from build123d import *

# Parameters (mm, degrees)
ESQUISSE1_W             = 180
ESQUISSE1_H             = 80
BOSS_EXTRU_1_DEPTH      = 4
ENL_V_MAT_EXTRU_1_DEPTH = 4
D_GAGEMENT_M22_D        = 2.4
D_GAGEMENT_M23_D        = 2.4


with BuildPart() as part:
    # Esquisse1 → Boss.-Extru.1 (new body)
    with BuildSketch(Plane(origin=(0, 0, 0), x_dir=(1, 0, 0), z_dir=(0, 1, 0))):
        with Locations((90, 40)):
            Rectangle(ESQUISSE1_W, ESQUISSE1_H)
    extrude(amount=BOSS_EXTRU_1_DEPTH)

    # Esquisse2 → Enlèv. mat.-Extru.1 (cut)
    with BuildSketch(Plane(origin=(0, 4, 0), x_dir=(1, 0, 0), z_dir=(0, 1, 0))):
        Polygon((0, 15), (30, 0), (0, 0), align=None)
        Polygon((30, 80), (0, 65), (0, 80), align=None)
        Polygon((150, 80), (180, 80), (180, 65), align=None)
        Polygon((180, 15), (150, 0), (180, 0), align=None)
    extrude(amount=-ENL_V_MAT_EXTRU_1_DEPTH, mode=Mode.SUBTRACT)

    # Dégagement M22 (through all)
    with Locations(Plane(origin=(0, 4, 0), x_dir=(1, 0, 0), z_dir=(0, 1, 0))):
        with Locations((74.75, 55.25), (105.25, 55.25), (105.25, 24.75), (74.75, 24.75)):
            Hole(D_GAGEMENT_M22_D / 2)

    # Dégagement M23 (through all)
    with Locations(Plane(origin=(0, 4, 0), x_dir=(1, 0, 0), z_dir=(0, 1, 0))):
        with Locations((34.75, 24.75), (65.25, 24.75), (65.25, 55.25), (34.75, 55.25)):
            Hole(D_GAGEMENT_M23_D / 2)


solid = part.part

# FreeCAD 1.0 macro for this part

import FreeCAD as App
import Part
import Sketcher

doc = App.newDocument("Part")
params = doc.addObject("Spreadsheet::Sheet", "Params")
for row, (alias, value) in enumerate([
    ("sketch1_width", "180 mm"),
    ("sketch1_height", "80 mm"),
    ("pad1_length", "4 mm"),
    ("sketch2_width", "30 mm"),
    ("sketch2_height", "15 mm"),
    ("pocket1_length", "4 mm"),
    ("sketch3_diameter", "2.4 mm"),
    ("hole_diameter", "2.4 mm"),
    ("sketch4_diameter", "2.4 mm"),
    ("hole2_diameter", "2.4 mm"),
], start=1):
    params.set(f"A{row}", alias)
    params.set(f"B{row}", "=" + value)
    params.setAlias(f"B{row}", alias)

body = doc.addObject("PartDesign::Body", "Body")

# Sketch on XZ plane
sketch1 = doc.addObject("Sketcher::SketchObject", "Sketch")
body.addObject(sketch1)
sketch1.AttachmentSupport = (doc.XZ_Plane, [""])
sketch1.MapMode = "FlatFace"
sketch1.addGeometry(Part.LineSegment(App.Vector(0, -80, 0), App.Vector(0, 0, 0)), False)
sketch1.addGeometry(Part.LineSegment(App.Vector(0, 0, 0), App.Vector(180, 0, 0)), False)
sketch1.addGeometry(Part.LineSegment(App.Vector(180, 0, 0), App.Vector(180, -80, 0)), False)
sketch1.addGeometry(Part.LineSegment(App.Vector(180, -80, 0), App.Vector(0, -80, 0)), False)
sketch1.addConstraint(Sketcher.Constraint("Coincident", 0, 2, 1, 1))
sketch1.addConstraint(Sketcher.Constraint("Coincident", 1, 2, 2, 1))
sketch1.addConstraint(Sketcher.Constraint("Coincident", 2, 2, 3, 1))
sketch1.addConstraint(Sketcher.Constraint("Coincident", 3, 2, 0, 1))
sketch1.addConstraint(Sketcher.Constraint("Vertical", 0))
sketch1.addConstraint(Sketcher.Constraint("Horizontal", 1))
sketch1.addConstraint(Sketcher.Constraint("Vertical", 2))
sketch1.addConstraint(Sketcher.Constraint("Horizontal", 3))
sketch1.addConstraint(Sketcher.Constraint("Coincident", 0, 2, -1, 1))
sketch1.addConstraint(Sketcher.Constraint("DistanceX", 1, 1, 1, 2, 180.0))
sketch1.addConstraint(Sketcher.Constraint("DistanceY", 0, 1, 0, 2, 80.0))
sketch1.setExpression("Constraints[9]", "Params.sketch1_width")
sketch1.setExpression("Constraints[10]", "Params.sketch1_height")
pad1 = doc.addObject("PartDesign::Pad", "Pad")
body.addObject(pad1)
pad1.Profile = sketch1
pad1.setExpression("Length", "Params.pad1_length")
pad1.Reversed = True

# Sketch on XZ plane
sketch2 = doc.addObject("Sketcher::SketchObject", "Sketch001")
body.addObject(sketch2)
sketch2.AttachmentSupport = (doc.XZ_Plane, [""])
sketch2.MapMode = "FlatFace"
sketch2.AttachmentOffset = App.Placement(App.Vector(0, 0, -4), App.Rotation())
sketch2.addGeometry(Part.LineSegment(App.Vector(30, 0, 0), App.Vector(0, -15, 0)), False)
sketch2.addGeometry(Part.LineSegment(App.Vector(0, -15, 0), App.Vector(0, 0, 0)), False)
sketch2.addGeometry(Part.LineSegment(App.Vector(0, 0, 0), App.Vector(30, 0, 0)), False)
sketch2.addGeometry(Part.LineSegment(App.Vector(0, -65, 0), App.Vector(30, -80, 0)), False)
sketch2.addGeometry(Part.LineSegment(App.Vector(30, -80, 0), App.Vector(0, -80, 0)), False)
sketch2.addGeometry(Part.LineSegment(App.Vector(0, -80, 0), App.Vector(0, -65, 0)), False)
sketch2.addGeometry(Part.LineSegment(App.Vector(180, -80, 0), App.Vector(150, -80, 0)), False)
sketch2.addGeometry(Part.LineSegment(App.Vector(150, -80, 0), App.Vector(180, -65, 0)), False)
sketch2.addGeometry(Part.LineSegment(App.Vector(180, -65, 0), App.Vector(180, -80, 0)), False)
sketch2.addGeometry(Part.LineSegment(App.Vector(180, -15, 0), App.Vector(150, 0, 0)), False)
sketch2.addGeometry(Part.LineSegment(App.Vector(150, 0, 0), App.Vector(180, 0, 0)), False)
sketch2.addGeometry(Part.LineSegment(App.Vector(180, 0, 0), App.Vector(180, -15, 0)), False)
sketch2.addConstraint(Sketcher.Constraint("Coincident", 0, 2, 1, 1))
sketch2.addConstraint(Sketcher.Constraint("Coincident", 1, 2, 2, 1))
sketch2.addConstraint(Sketcher.Constraint("Coincident", 2, 2, 0, 1))
sketch2.addConstraint(Sketcher.Constraint("Coincident", 3, 2, 4, 1))
sketch2.addConstraint(Sketcher.Constraint("Coincident", 4, 2, 5, 1))
sketch2.addConstraint(Sketcher.Constraint("Coincident", 5, 2, 3, 1))
sketch2.addConstraint(Sketcher.Constraint("Coincident", 6, 2, 7, 1))
sketch2.addConstraint(Sketcher.Constraint("Coincident", 7, 2, 8, 1))
sketch2.addConstraint(Sketcher.Constraint("Coincident", 8, 2, 6, 1))
sketch2.addConstraint(Sketcher.Constraint("Coincident", 9, 2, 10, 1))
sketch2.addConstraint(Sketcher.Constraint("Coincident", 10, 2, 11, 1))
sketch2.addConstraint(Sketcher.Constraint("Coincident", 11, 2, 9, 1))
sketch2.addConstraint(Sketcher.Constraint("Vertical", 1))
sketch2.addConstraint(Sketcher.Constraint("Horizontal", 2))
sketch2.addConstraint(Sketcher.Constraint("Horizontal", 4))
sketch2.addConstraint(Sketcher.Constraint("Vertical", 5))
sketch2.addConstraint(Sketcher.Constraint("Horizontal", 6))
sketch2.addConstraint(Sketcher.Constraint("Vertical", 8))
sketch2.addConstraint(Sketcher.Constraint("Horizontal", 10))
sketch2.addConstraint(Sketcher.Constraint("Vertical", 11))
sketch2.addConstraint(Sketcher.Constraint("Coincident", 1, 2, -1, 1))
sketch2.addConstraint(Sketcher.Constraint("PointOnObject", 4, 2, -2))
sketch2.addConstraint(Sketcher.Constraint("PointOnObject", 9, 2, -1))
sketch2.addConstraint(Sketcher.Constraint("Parallel", 0, 7))
sketch2.addConstraint(Sketcher.Constraint("Parallel", 3, 9))
sketch2.addConstraint(Sketcher.Constraint("Horizontal", 4, 2, 6, 2))
sketch2.addConstraint(Sketcher.Constraint("Horizontal", 5, 2, 7, 2))
sketch2.addConstraint(Sketcher.Constraint("Horizontal", 0, 2, 11, 2))
sketch2.addConstraint(Sketcher.Constraint("Vertical", 2, 2, 3, 2))
sketch2.addConstraint(Sketcher.Constraint("Vertical", 6, 2, 9, 2))
sketch2.addConstraint(Sketcher.Constraint("Vertical", 8, 2, 10, 2))
sketch2.addConstraint(Sketcher.Constraint("DistanceX", 2, 1, 2, 2, 30.0))
sketch2.addConstraint(Sketcher.Constraint("DistanceY", 1, 1, 1, 2, 15.0))
sketch2.addConstraint(Sketcher.Constraint("DistanceY", 3, 2, -1, 1, 80.0))
sketch2.addConstraint(Sketcher.Constraint("DistanceX", -1, 1, 6, 2, 150.0))
sketch2.setExpression("Constraints[31]", "Params.sketch2_width")
sketch2.setExpression("Constraints[32]", "Params.sketch2_height")
pocket1 = doc.addObject("PartDesign::Pocket", "Pocket")
body.addObject(pocket1)
pocket1.Profile = sketch2
pocket1.setExpression("Length", "Params.pocket1_length")
pocket1.Reversed = True

# Sketch on XZ plane
sketch3 = doc.addObject("Sketcher::SketchObject", "Sketch002")
body.addObject(sketch3)
sketch3.AttachmentSupport = (doc.XZ_Plane, [""])
sketch3.MapMode = "FlatFace"
sketch3.AttachmentOffset = App.Placement(App.Vector(0, 0, -4), App.Rotation())
sketch3.addGeometry(Part.Circle(App.Vector(74.75, -55.25, 0), App.Vector(0, 0, 1), 1.2), False)
sketch3.addGeometry(Part.Circle(App.Vector(105.25, -55.25, 0), App.Vector(0, 0, 1), 1.2), False)
sketch3.addGeometry(Part.Circle(App.Vector(105.25, -24.75, 0), App.Vector(0, 0, 1), 1.2), False)
sketch3.addGeometry(Part.Circle(App.Vector(74.75, -24.75, 0), App.Vector(0, 0, 1), 1.2), False)
sketch3.addConstraint(Sketcher.Constraint("Equal", 0, 1))
sketch3.addConstraint(Sketcher.Constraint("Equal", 1, 2))
sketch3.addConstraint(Sketcher.Constraint("Equal", 2, 3))
sketch3.addConstraint(Sketcher.Constraint("Horizontal", 0, 3, 1, 3))
sketch3.addConstraint(Sketcher.Constraint("Horizontal", 2, 3, 3, 3))
sketch3.addConstraint(Sketcher.Constraint("Vertical", 1, 3, 2, 3))
sketch3.addConstraint(Sketcher.Constraint("Vertical", 0, 3, 3, 3))
sketch3.addConstraint(Sketcher.Constraint("Diameter", 0, 2.4))
sketch3.addConstraint(Sketcher.Constraint("DistanceX", 0, 3, 1, 3, 30.5))
sketch3.addConstraint(Sketcher.Constraint("DistanceY", 1, 3, 2, 3, 30.5))
sketch3.addConstraint(Sketcher.Constraint("DistanceX", -1, 1, 0, 3, 74.75))
sketch3.addConstraint(Sketcher.Constraint("DistanceY", 0, 3, -1, 1, 55.25))
sketch3.setExpression("Constraints[7]", "Params.sketch3_diameter")
doc.recompute()
hole = doc.addObject("PartDesign::Hole", "Hole")
body.addObject(hole)
hole.Profile = sketch3
hole.ThreadType = "None"
hole.setExpression("Diameter", "Params.hole_diameter")
hole.DepthType = "ThroughAll"
hole.Reversed = True

# Sketch on XZ plane
sketch4 = doc.addObject("Sketcher::SketchObject", "Sketch003")
body.addObject(sketch4)
sketch4.AttachmentSupport = (doc.XZ_Plane, [""])
sketch4.MapMode = "FlatFace"
sketch4.AttachmentOffset = App.Placement(App.Vector(0, 0, -4), App.Rotation())
sketch4.addGeometry(Part.Circle(App.Vector(34.75, -24.75, 0), App.Vector(0, 0, 1), 1.2), False)
sketch4.addGeometry(Part.Circle(App.Vector(65.25, -24.75, 0), App.Vector(0, 0, 1), 1.2), False)
sketch4.addGeometry(Part.Circle(App.Vector(65.25, -55.25, 0), App.Vector(0, 0, 1), 1.2), False)
sketch4.addGeometry(Part.Circle(App.Vector(34.75, -55.25, 0), App.Vector(0, 0, 1), 1.2), False)
sketch4.addConstraint(Sketcher.Constraint("Equal", 0, 1))
sketch4.addConstraint(Sketcher.Constraint("Equal", 1, 2))
sketch4.addConstraint(Sketcher.Constraint("Equal", 2, 3))
sketch4.addConstraint(Sketcher.Constraint("Horizontal", 0, 3, 1, 3))
sketch4.addConstraint(Sketcher.Constraint("Horizontal", 2, 3, 3, 3))
sketch4.addConstraint(Sketcher.Constraint("Vertical", 1, 3, 2, 3))
sketch4.addConstraint(Sketcher.Constraint("Vertical", 0, 3, 3, 3))
sketch4.addConstraint(Sketcher.Constraint("Diameter", 0, 2.4))
sketch4.addConstraint(Sketcher.Constraint("DistanceX", 0, 3, 1, 3, 30.5))
sketch4.addConstraint(Sketcher.Constraint("DistanceY", 2, 3, 1, 3, 30.5))
sketch4.addConstraint(Sketcher.Constraint("DistanceX", -1, 1, 0, 3, 34.75))
sketch4.addConstraint(Sketcher.Constraint("DistanceY", 0, 3, -1, 1, 24.75))
sketch4.setExpression("Constraints[7]", "Params.sketch4_diameter")
doc.recompute()
hole2 = doc.addObject("PartDesign::Hole", "Hole001")
body.addObject(hole2)
hole2.Profile = sketch4
hole2.ThreadType = "None"
hole2.setExpression("Diameter", "Params.hole2_diameter")
hole2.DepthType = "ThroughAll"
hole2.Reversed = True

doc.recompute()
